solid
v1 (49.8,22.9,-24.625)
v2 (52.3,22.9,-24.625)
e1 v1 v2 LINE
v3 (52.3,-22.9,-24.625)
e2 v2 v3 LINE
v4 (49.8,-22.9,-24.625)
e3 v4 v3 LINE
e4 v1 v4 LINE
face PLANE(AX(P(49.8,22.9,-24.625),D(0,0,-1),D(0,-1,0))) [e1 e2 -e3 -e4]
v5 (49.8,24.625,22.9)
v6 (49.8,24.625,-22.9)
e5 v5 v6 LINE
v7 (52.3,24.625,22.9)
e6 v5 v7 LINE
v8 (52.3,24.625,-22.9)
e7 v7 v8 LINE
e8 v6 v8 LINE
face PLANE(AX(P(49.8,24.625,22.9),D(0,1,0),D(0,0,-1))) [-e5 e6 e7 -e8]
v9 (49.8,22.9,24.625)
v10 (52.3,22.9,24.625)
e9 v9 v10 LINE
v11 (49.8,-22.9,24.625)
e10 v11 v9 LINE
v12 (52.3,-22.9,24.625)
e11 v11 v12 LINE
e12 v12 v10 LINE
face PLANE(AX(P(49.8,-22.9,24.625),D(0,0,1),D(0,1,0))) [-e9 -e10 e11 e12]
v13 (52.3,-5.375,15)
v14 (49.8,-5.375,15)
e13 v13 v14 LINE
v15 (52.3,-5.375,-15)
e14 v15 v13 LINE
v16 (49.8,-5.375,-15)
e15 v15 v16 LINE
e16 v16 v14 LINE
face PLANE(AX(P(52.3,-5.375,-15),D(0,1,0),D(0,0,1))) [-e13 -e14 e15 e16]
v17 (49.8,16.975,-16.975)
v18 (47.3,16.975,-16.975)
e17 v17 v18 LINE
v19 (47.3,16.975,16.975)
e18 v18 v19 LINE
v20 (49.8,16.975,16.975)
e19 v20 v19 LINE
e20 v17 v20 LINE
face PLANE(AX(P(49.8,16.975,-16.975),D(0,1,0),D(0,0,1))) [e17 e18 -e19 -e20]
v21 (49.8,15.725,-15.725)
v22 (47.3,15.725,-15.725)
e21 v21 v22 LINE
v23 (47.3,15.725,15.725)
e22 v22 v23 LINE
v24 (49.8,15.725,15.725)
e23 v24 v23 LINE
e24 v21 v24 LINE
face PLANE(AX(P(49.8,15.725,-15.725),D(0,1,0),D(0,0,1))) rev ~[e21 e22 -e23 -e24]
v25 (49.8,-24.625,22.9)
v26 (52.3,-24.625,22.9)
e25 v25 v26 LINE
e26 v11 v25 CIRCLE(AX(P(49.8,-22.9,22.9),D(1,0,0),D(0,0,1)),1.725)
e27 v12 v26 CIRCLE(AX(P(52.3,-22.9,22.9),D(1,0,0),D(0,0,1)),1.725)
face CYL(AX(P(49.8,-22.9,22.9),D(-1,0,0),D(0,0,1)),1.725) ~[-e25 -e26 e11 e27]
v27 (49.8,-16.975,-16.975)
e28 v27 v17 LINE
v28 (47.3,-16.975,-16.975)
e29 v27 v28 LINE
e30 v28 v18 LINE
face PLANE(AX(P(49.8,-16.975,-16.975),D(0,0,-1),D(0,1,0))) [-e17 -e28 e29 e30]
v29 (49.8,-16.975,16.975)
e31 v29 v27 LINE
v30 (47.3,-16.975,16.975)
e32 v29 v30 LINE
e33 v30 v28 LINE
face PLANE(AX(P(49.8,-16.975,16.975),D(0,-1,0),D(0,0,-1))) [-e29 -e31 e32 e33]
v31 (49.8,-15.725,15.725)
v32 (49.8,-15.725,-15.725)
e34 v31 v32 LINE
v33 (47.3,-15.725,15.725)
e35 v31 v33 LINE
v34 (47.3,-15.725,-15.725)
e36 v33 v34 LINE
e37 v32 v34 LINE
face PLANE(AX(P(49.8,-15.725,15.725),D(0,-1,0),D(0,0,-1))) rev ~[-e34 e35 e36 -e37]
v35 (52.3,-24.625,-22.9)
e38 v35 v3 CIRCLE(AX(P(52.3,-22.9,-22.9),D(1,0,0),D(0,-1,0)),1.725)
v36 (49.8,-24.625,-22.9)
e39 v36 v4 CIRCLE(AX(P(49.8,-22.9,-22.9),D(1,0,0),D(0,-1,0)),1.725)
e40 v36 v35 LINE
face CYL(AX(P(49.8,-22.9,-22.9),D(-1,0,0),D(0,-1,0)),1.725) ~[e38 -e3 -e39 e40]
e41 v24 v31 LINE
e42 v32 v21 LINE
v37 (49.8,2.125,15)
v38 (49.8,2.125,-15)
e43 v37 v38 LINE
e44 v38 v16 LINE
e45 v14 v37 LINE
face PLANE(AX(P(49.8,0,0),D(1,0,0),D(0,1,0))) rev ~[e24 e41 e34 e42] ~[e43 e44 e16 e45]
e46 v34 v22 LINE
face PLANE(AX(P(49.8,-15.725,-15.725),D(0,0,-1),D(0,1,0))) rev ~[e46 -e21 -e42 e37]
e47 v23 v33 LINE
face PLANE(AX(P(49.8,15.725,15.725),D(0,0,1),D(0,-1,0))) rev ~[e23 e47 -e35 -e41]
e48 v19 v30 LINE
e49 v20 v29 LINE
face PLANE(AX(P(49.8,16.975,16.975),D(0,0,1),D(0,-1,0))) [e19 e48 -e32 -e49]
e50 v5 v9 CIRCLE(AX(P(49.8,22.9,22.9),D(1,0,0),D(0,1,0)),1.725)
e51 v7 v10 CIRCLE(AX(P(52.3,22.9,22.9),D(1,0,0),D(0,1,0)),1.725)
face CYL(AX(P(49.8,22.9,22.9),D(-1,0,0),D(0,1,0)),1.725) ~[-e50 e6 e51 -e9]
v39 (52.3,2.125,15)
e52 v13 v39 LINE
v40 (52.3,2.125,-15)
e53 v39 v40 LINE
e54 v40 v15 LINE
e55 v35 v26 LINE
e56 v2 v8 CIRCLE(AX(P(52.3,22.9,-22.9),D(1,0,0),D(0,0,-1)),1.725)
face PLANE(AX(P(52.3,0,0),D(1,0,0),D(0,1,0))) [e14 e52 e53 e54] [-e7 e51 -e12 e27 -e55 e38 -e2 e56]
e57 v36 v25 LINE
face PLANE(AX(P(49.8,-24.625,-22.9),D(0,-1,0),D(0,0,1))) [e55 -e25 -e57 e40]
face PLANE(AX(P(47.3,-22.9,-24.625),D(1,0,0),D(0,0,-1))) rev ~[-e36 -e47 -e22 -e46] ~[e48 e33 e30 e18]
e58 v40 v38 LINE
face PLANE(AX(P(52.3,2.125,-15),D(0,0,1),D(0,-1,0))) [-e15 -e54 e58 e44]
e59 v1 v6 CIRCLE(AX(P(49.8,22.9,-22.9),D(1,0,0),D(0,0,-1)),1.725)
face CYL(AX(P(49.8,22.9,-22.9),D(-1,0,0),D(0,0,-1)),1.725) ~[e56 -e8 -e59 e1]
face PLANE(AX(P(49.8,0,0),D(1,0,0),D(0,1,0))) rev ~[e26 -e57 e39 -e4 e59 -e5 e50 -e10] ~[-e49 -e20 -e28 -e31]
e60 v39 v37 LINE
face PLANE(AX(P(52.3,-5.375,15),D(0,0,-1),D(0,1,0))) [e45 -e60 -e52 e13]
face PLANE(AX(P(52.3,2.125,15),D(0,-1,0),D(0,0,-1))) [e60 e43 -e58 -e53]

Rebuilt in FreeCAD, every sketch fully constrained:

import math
import FreeCAD as App
import Part
import Sketcher

V = App.Vector
Q = App.Units.Quantity

doc = App.newDocument("Part")
params = doc.addObject("Spreadsheet::Sheet", "Params")
for row, (alias, value) in enumerate([
    ("sketch1_width", "45.8 mm"),
    ("pad1_length", "2.5 mm"),
    ("sketch2_width", "33.95 mm"),
    ("pad2_length", "2.5 mm"),
    ("sketch3_height", "30 mm"),
    ("sketch3_width", "7.5 mm"),
    ("pocket1_length", "2.5 mm"),
], start=1):
    params.set(f"A{row}", alias)
    params.set(f"B{row}", "=" + value)
    params.setAlias(f"B{row}", alias)

body = doc.addObject("PartDesign::Body", "Body")

# Sketch on YZ plane
sketch1 = doc.addObject("Sketcher::SketchObject", "Sketch")
body.addObject(sketch1)
sketch1.AttachmentSupport = (doc.YZ_Plane, [""])
sketch1.MapMode = "FlatFace"
sketch1.AttachmentOffset = App.Placement(V(0, 0, 49.8), App.Rotation())
sketch1.addGeometry([
    Part.LineSegment(V(-24.6, 22.9, 0), V(-24.6, -22.9, 0)),  # 0
    Part.ArcOfCircle(Part.Circle(V(-22.9, -22.9, 0), V(0, 0, 1), 1.7), math.radians(180), math.radians(270)),  # 1
    Part.LineSegment(V(-22.9, -24.6, 0), V(22.9, -24.6, 0)),  # 2
    Part.ArcOfCircle(Part.Circle(V(22.9, -22.9, 0), V(0, 0, 1), 1.7), math.radians(-90), math.radians(0)),  # 3
    Part.LineSegment(V(24.6, -22.9, 0), V(24.6, 22.9, 0)),  # 4
    Part.ArcOfCircle(Part.Circle(V(22.9, 22.9, 0), V(0, 0, 1), 1.7), math.radians(0), math.radians(90)),  # 5
    Part.LineSegment(V(22.9, 24.6, 0), V(-22.9, 24.6, 0)),  # 6
    Part.ArcOfCircle(Part.Circle(V(-22.9, 22.9, 0), V(0, 0, 1), 1.7), math.radians(90), math.radians(180)),  # 7
], False)
sketch1.addConstraint([
    Sketcher.Constraint("Tangent", 0, 2, 1, 1),
    Sketcher.Constraint("Tangent", 1, 2, 2, 1),
    Sketcher.Constraint("Tangent", 2, 2, 3, 1),
    Sketcher.Constraint("Tangent", 3, 2, 4, 1),
    Sketcher.Constraint("Tangent", 4, 2, 5, 1),
    Sketcher.Constraint("Tangent", 5, 2, 6, 1),
    Sketcher.Constraint("Tangent", 6, 2, 7, 1),
    Sketcher.Constraint("Tangent", 7, 2, 0, 1),
    Sketcher.Constraint("Vertical", 0),
    Sketcher.Constraint("Horizontal", 2),
    Sketcher.Constraint("Vertical", 4),
    Sketcher.Constraint("Horizontal", 6),
    Sketcher.Constraint("Equal", 1, 3),
    Sketcher.Constraint("Equal", 3, 5),
    Sketcher.Constraint("Equal", 5, 7),
    Sketcher.Constraint("Symmetric", 1, 3, 5, 3, -1, 1),
    Sketcher.Constraint("Equal", 6, 0),
    Sketcher.Constraint("DistanceX", 2, 1, 2, 2, Q("45.8 mm")),
    Sketcher.Constraint("Radius", 1, Q("1.725 mm")),
])
sketch1.setExpression("Constraints[17]", "Params.sketch1_width")
pad1 = doc.addObject("PartDesign::Pad", "Pad")
body.addObject(pad1)
pad1.Profile = sketch1
pad1.setExpression("Length", "Params.pad1_length")

# Sketch on YZ plane
sketch2 = doc.addObject("Sketcher::SketchObject", "Sketch001")
body.addObject(sketch2)
sketch2.AttachmentSupport = (doc.YZ_Plane, [""])
sketch2.MapMode = "FlatFace"
sketch2.AttachmentOffset = App.Placement(V(0, 0, 49.8), App.Rotation())
sketch2.addGeometry([
    Part.LineSegment(V(-17, -17, 0), V(17, -17, 0)),  # 0
    Part.LineSegment(V(17, -17, 0), V(17, 17, 0)),  # 1
    Part.LineSegment(V(17, 17, 0), V(-17, 17, 0)),  # 2
    Part.LineSegment(V(-17, 17, 0), V(-17, -17, 0)),  # 3
    Part.LineSegment(V(16, 16, 0), V(16, -16, 0)),  # 4
    Part.LineSegment(V(16, -16, 0), V(-16, -16, 0)),  # 5
    Part.LineSegment(V(-16, -16, 0), V(-16, 16, 0)),  # 6
    Part.LineSegment(V(-16, 16, 0), V(16, 16, 0)),  # 7
], False)
sketch2.addConstraint([
    Sketcher.Constraint("Coincident", 0, 2, 1, 1),
    Sketcher.Constraint("Coincident", 1, 2, 2, 1),
    Sketcher.Constraint("Coincident", 2, 2, 3, 1),
    Sketcher.Constraint("Coincident", 3, 2, 0, 1),
    Sketcher.Constraint("Coincident", 4, 2, 5, 1),
    Sketcher.Constraint("Coincident", 5, 2, 6, 1),
    Sketcher.Constraint("Coincident", 6, 2, 7, 1),
    Sketcher.Constraint("Coincident", 7, 2, 4, 1),
    Sketcher.Constraint("Horizontal", 0),
    Sketcher.Constraint("Vertical", 1),
    Sketcher.Constraint("Horizontal", 2),
    Sketcher.Constraint("Vertical", 3),
    Sketcher.Constraint("Vertical", 4),
    Sketcher.Constraint("Horizontal", 5),
    Sketcher.Constraint("Vertical", 6),
    Sketcher.Constraint("Horizontal", 7),
    Sketcher.Constraint("Symmetric", 0, 2, 2, 2, -1, 1),
    Sketcher.Constraint("Symmetric", 4, 2, 6, 2, -1, 1),
    Sketcher.Constraint("Equal", 2, 1),
    Sketcher.Constraint("Equal", 7, 4),
    Sketcher.Constraint("DistanceX", 4, 2, 0, 2, Q("1.25 mm")),
    Sketcher.Constraint("DistanceX", 0, 1, 0, 2, Q("33.95 mm")),
])
sketch2.setExpression("Constraints[21]", "Params.sketch2_width")
pad2 = doc.addObject("PartDesign::Pad", "Pad001")
body.addObject(pad2)
pad2.Profile = sketch2
pad2.setExpression("Length", "Params.pad2_length")
pad2.Reversed = True

# Sketch on YZ plane
sketch3 = doc.addObject("Sketcher::SketchObject", "Sketch002")
body.addObject(sketch3)
sketch3.AttachmentSupport = (doc.YZ_Plane, [""])
sketch3.MapMode = "FlatFace"
sketch3.AttachmentOffset = App.Placement(V(0, 0, 52.3), App.Rotation())
sketch3.addGeometry([
    Part.LineSegment(V(-5, 15, 0), V(-5, -15, 0)),
    Part.LineSegment(V(-5, -15, 0), V(2, -15, 0)),
    Part.LineSegment(V(2, -15, 0), V(2, 15, 0)),
    Part.LineSegment(V(2, 15, 0), V(-5, 15, 0)),
], False)
sketch3.addConstraint([
    Sketcher.Constraint("Coincident", 0, 2, 1, 1),
    Sketcher.Constraint("Coincident", 1, 2, 2, 1),
    Sketcher.Constraint("Coincident", 2, 2, 3, 1),
    Sketcher.Constraint("Coincident", 3, 2, 0, 1),
    Sketcher.Constraint("Vertical", 0),
    Sketcher.Constraint("Horizontal", 1),
    Sketcher.Constraint("Vertical", 2),
    Sketcher.Constraint("Horizontal", 3),
    Sketcher.Constraint("DistanceY", 0, 2, 0, 1, Q("30 mm")),
    Sketcher.Constraint("DistanceX", 1, 1, 1, 2, Q("7.5 mm")),
    Sketcher.Constraint("DistanceY", 0, 2, -1, 1, Q("15 mm")),
    Sketcher.Constraint("DistanceX", 0, 2, -1, 1, Q("5.375 mm")),
])
sketch3.setExpression("Constraints[8]", "Params.sketch3_height")
sketch3.setExpression("Constraints[9]", "Params.sketch3_width")
pocket1 = doc.addObject("PartDesign::Pocket", "Pocket")
body.addObject(pocket1)
pocket1.Profile = sketch3
pocket1.setExpression("Length", "Params.pocket1_length")

doc.recompute()
